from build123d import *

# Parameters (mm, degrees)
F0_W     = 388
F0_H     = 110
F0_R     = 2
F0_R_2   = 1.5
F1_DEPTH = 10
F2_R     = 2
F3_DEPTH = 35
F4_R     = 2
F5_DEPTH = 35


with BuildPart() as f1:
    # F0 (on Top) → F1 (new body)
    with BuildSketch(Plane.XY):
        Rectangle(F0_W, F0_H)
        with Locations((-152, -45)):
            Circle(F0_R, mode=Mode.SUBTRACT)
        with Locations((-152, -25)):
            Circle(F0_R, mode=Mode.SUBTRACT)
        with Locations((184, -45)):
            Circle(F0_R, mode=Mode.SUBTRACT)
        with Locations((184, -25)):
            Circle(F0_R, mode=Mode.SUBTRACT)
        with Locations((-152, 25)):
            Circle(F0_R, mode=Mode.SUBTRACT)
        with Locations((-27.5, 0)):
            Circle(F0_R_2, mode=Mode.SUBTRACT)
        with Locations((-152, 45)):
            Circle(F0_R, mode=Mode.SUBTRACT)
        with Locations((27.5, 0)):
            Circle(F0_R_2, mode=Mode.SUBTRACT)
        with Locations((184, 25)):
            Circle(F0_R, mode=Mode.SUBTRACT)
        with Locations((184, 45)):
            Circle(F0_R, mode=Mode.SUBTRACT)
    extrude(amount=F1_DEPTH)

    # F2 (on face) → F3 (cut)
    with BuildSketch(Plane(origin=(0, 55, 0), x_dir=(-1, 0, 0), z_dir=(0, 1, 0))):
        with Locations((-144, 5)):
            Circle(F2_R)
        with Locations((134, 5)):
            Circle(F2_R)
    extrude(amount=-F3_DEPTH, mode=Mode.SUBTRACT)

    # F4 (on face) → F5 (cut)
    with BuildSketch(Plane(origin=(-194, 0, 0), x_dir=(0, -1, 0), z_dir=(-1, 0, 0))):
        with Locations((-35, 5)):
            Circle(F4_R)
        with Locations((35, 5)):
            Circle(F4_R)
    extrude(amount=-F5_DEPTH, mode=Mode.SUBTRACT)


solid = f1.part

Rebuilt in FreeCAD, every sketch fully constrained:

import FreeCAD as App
import Part
import Sketcher

V = App.Vector


def add_polygon(sketch, points):
    """Adds a closed chain of lines whose ends are joined by coincident constraints."""
    first, n = sketch.GeometryCount, len(points)
    for a, b in zip(points, points[1:] + points[:1]):
        sketch.addGeometry(Part.LineSegment(App.Vector(*a, 0), App.Vector(*b, 0)), False)
    for i in range(n):
        sketch.addConstraint(Sketcher.Constraint("Coincident", first + i, 2, first + (i + 1) % n, 1))

doc = App.newDocument("Part")
params = doc.addObject("Spreadsheet::Sheet", "Params")
for row, (alias, value) in enumerate([
    ("sketch1_diameter", "4 mm"),
    ("sketch1_diameter2", "3 mm"),
    ("sketch1_width", "388 mm"),
    ("sketch1_height", "110 mm"),
    ("pad1_length", "10 mm"),
    ("sketch2_diameter", "4 mm"),
    ("pocket1_length", "35 mm"),
    ("sketch3_diameter", "4 mm"),
    ("pocket2_length", "35 mm"),
], start=1):
    params.set(f"A{row}", alias)
    params.set(f"B{row}", "=" + value)
    params.setAlias(f"B{row}", alias)

body = doc.addObject("PartDesign::Body", "Body")

# Sketch on XY plane
sketch1 = doc.addObject("Sketcher::SketchObject", "Sketch")
body.addObject(sketch1)
sketch1.AttachmentSupport = (doc.XY_Plane, [""])
sketch1.MapMode = "FlatFace"
add_polygon(sketch1, [(-194, 55), (-194, -55), (194, -55), (194, 55)])  # lines 0-3
sketch1.addGeometry(Part.Circle(V(-152, -45, 0), V(0, 0, 1), 2), False)  # 4
sketch1.addGeometry(Part.Circle(V(-152, -25, 0), V(0, 0, 1), 2), False)  # 5
sketch1.addGeometry(Part.Circle(V(184, -45, 0), V(0, 0, 1), 2), False)  # 6
sketch1.addGeometry(Part.Circle(V(184, -25, 0), V(0, 0, 1), 2), False)  # 7
sketch1.addGeometry(Part.Circle(V(-27.5, 0, 0), V(0, 0, 1), 1.5), False)  # 8
sketch1.addGeometry(Part.Circle(V(-152, 25, 0), V(0, 0, 1), 2), False)  # 9
sketch1.addGeometry(Part.Circle(V(-152, 45, 0), V(0, 0, 1), 2), False)  # 10
sketch1.addGeometry(Part.Circle(V(27.5, 0, 0), V(0, 0, 1), 1.5), False)  # 11
sketch1.addGeometry(Part.Circle(V(184, 25, 0), V(0, 0, 1), 2), False)  # 12
sketch1.addGeometry(Part.Circle(V(184, 45, 0), V(0, 0, 1), 2), False)  # 13
sketch1.addConstraint([
    Sketcher.Constraint("Vertical", 0),
    Sketcher.Constraint("Horizontal", 1),
    Sketcher.Constraint("Vertical", 2),
    Sketcher.Constraint("Horizontal", 3),
    Sketcher.Constraint("Equal", 4, 5),
    Sketcher.Constraint("Equal", 5, 6),
    Sketcher.Constraint("Equal", 6, 7),
    Sketcher.Constraint("Equal", 7, 9),
    Sketcher.Constraint("Equal", 9, 10),
    Sketcher.Constraint("Equal", 8, 11),
    Sketcher.Constraint("Equal", 10, 12),
    Sketcher.Constraint("Equal", 12, 13),
    Sketcher.Constraint("Symmetric", 8, 3, 11, 3, -1, 1),
    Sketcher.Constraint("Symmetric", 0, 2, 2, 2, -1, 1),
    Sketcher.Constraint("Symmetric", 5, 3, 9, 3, -1),
    Sketcher.Constraint("Symmetric", 4, 3, 10, 3, -1),
    Sketcher.Constraint("Symmetric", 7, 3, 12, 3, -1),
    Sketcher.Constraint("Symmetric", 6, 3, 13, 3, -1),
    Sketcher.Constraint("PointOnObject", 8, 3, -1),
    Sketcher.Constraint("Horizontal", 4, 3, 6, 3),
    Sketcher.Constraint("Horizontal", 5, 3, 7, 3),
    Sketcher.Constraint("Vertical", 4, 3, 5, 3),
    Sketcher.Constraint("Vertical", 6, 3, 7, 3),
    Sketcher.Constraint("Diameter", 4, 4.0),
    Sketcher.Constraint("Diameter", 8, 3.0),
    Sketcher.Constraint("DistanceX", 1, 1, 1, 2, 388.0),
    Sketcher.Constraint("DistanceY", 0, 2, 0, 1, 110.0),
    Sketcher.Constraint("DistanceX", 4, 3, -1, 1, 152.0),
    Sketcher.Constraint("DistanceY", 4, 3, -1, 1, 45.0),
    Sketcher.Constraint("DistanceY", 5, 3, -1, 1, 25.0),
    Sketcher.Constraint("DistanceX", -1, 1, 6, 3, 184.0),
    Sketcher.Constraint("DistanceX", 8, 3, 11, 3, 55.0),
])
sketch1.setExpression("Constraints[27]", "Params.sketch1_diameter")
sketch1.setExpression("Constraints[28]", "Params.sketch1_diameter2")
sketch1.setExpression("Constraints[29]", "Params.sketch1_width")
sketch1.setExpression("Constraints[30]", "Params.sketch1_height")
pad1 = doc.addObject("PartDesign::Pad", "Pad")
body.addObject(pad1)
pad1.Profile = sketch1
pad1.setExpression("Length", "Params.pad1_length")

# Sketch on XZ plane
sketch2 = doc.addObject("Sketcher::SketchObject", "Sketch001")
body.addObject(sketch2)
sketch2.AttachmentSupport = (doc.XZ_Plane, [""])
sketch2.MapMode = "FlatFace"
sketch2.AttachmentOffset = App.Placement(V(0, 0, -55), App.Rotation())
sketch2.addGeometry([
    Part.Circle(V(144, 5, 0), V(0, 0, 1), 2),
    Part.Circle(V(-134, 5, 0), V(0, 0, 1), 2),
], False)
sketch2.addConstraint([
    Sketcher.Constraint("Equal", 0, 1),
    Sketcher.Constraint("Horizontal", 0, 3, 1, 3),
    Sketcher.Constraint("Diameter", 0, 4.0),
    Sketcher.Constraint("DistanceX", -1, 1, 0, 3, 144.0),
    Sketcher.Constraint("DistanceY", -1, 1, 0, 3, 5.0),
    Sketcher.Constraint("DistanceX", 1, 3, -1, 1, 134.0),
])
sketch2.setExpression("Constraints[2]", "Params.sketch2_diameter")
pocket1 = doc.addObject("PartDesign::Pocket", "Pocket")
body.addObject(pocket1)
pocket1.Profile = sketch2
pocket1.setExpression("Length", "Params.pocket1_length")
pocket1.Reversed = True

# Sketch on YZ plane
sketch3 = doc.addObject("Sketcher::SketchObject", "Sketch002")
body.addObject(sketch3)
sketch3.AttachmentSupport = (doc.YZ_Plane, [""])
sketch3.MapMode = "FlatFace"
sketch3.AttachmentOffset = App.Placement(V(0, 0, -194), App.Rotation())
sketch3.addGeometry([
    Part.Circle(V(35, 5, 0), V(0, 0, 1), 2),
    Part.Circle(V(-35, 5, 0), V(0, 0, 1), 2),
], False)
sketch3.addConstraint([
    Sketcher.Constraint("Equal", 0, 1),
    Sketcher.Constraint("Symmetric", 0, 3, 1, 3, -2),
    Sketcher.Constraint("Diameter", 0, 4.0),
    Sketcher.Constraint("DistanceX", -1, 1, 0, 3, 35.0),
    Sketcher.Constraint("DistanceY", -1, 1, 0, 3, 5.0),
])
sketch3.setExpression("Constraints[2]", "Params.sketch3_diameter")
pocket2 = doc.addObject("PartDesign::Pocket", "Pocket001")
body.addObject(pocket2)
pocket2.Profile = sketch3
pocket2.setExpression("Length", "Params.pocket2_length")
pocket2.Reversed = True

doc.recompute()
